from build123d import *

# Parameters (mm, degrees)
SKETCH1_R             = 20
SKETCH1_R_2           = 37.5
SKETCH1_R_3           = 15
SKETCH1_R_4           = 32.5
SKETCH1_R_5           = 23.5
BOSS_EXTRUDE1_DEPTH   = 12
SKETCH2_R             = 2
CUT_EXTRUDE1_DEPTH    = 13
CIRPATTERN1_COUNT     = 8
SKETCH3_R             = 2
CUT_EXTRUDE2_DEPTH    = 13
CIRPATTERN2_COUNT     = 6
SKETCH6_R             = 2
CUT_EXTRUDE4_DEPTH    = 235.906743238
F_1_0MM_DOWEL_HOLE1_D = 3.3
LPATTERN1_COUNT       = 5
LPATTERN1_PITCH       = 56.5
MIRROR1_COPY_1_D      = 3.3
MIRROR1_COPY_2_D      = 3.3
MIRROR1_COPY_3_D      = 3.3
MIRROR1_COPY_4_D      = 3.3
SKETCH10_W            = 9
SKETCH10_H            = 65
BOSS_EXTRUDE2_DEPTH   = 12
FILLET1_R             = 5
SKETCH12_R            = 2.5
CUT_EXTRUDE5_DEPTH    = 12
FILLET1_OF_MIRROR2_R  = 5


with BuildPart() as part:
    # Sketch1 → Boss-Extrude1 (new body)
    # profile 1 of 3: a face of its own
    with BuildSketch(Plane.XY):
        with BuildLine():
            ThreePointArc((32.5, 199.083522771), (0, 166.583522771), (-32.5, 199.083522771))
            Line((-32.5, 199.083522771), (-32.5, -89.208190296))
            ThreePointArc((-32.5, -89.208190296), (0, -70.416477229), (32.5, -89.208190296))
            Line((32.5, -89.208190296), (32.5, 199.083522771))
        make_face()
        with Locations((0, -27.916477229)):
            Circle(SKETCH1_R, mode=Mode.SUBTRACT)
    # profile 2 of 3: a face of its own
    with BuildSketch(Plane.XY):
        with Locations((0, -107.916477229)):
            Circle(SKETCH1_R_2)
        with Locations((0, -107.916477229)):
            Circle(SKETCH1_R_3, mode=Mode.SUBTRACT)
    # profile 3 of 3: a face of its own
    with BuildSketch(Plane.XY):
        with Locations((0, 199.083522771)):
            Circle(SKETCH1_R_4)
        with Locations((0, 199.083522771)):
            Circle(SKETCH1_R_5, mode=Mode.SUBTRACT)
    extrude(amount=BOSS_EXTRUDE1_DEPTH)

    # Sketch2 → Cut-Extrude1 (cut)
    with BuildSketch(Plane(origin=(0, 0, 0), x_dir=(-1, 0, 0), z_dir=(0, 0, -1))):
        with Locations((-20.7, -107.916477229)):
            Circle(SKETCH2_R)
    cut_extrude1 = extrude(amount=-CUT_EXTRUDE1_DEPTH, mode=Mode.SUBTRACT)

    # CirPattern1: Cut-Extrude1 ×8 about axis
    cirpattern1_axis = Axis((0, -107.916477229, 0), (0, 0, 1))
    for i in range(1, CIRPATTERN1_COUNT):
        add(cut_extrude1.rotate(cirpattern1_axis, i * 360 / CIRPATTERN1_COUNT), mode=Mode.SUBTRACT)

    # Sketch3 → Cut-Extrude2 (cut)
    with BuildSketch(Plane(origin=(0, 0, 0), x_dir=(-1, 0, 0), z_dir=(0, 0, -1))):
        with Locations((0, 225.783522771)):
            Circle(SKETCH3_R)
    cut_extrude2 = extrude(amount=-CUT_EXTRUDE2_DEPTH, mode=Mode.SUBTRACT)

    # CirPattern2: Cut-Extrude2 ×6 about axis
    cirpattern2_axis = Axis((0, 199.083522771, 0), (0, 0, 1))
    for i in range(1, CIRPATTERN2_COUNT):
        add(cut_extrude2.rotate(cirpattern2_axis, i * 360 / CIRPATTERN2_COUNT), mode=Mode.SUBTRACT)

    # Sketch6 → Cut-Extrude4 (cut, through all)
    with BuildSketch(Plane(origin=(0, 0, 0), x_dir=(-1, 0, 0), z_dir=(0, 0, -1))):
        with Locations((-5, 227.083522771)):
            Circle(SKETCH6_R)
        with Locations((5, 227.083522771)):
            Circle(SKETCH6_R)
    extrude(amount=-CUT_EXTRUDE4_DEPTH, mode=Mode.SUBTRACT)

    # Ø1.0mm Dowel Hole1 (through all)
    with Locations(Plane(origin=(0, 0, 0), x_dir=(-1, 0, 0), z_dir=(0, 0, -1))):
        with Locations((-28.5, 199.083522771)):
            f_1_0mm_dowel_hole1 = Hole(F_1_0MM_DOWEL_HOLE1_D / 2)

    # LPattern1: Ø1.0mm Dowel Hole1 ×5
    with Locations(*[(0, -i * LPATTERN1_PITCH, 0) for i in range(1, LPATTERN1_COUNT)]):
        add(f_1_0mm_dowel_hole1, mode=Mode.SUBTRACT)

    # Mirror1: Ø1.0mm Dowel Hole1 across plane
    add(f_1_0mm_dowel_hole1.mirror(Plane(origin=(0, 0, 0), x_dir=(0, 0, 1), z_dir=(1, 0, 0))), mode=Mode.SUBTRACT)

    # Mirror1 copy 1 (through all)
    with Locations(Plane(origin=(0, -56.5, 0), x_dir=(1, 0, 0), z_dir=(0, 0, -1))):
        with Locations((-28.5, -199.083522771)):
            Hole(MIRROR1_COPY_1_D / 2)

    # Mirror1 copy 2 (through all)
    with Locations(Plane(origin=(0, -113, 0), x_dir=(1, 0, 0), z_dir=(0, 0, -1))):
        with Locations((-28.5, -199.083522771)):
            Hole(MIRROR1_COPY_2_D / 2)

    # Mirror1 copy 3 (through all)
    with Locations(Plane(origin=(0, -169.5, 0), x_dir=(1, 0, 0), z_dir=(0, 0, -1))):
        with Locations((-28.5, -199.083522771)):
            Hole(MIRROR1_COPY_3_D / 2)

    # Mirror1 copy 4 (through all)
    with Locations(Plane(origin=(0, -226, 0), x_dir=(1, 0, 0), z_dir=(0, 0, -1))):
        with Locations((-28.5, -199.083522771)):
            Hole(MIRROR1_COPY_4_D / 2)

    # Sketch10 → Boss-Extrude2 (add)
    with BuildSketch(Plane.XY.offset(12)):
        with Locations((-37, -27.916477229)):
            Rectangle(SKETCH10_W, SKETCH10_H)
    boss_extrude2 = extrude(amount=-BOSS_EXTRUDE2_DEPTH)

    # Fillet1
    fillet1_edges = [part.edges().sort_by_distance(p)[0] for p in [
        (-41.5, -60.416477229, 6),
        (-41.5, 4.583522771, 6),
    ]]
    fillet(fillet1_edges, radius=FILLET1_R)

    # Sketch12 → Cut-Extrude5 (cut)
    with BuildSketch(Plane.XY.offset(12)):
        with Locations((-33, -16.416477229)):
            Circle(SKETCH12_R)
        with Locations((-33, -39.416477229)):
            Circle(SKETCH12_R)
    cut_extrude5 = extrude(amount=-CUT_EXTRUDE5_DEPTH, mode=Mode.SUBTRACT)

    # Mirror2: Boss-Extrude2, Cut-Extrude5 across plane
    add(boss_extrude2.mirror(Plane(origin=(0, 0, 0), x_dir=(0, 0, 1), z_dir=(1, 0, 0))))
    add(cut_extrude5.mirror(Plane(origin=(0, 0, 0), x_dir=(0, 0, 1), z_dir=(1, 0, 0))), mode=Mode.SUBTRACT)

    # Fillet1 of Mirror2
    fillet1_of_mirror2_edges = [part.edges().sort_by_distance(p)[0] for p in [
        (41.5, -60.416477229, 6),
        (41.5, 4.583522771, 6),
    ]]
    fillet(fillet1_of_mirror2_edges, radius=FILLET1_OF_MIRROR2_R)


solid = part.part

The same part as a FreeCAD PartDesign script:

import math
import FreeCAD as App
import Part
import Sketcher
from FreeCAD import Vector
Q = App.Units.Quantity


def edges_at(feature, points):
    """Names of the edges that pass closest to the given points."""
    edges = feature.Shape.Edges
    near = lambda p: min(range(len(edges)), key=lambda i: edges[i].distToShape(Part.Vertex(*p))[0])
    return sorted({f"Edge{near(p) + 1}" for p in points})


def add_polygon(sketch, points):
    """Adds a closed chain of lines whose ends are joined by coincident constraints."""
    first, n = sketch.GeometryCount, len(points)
    for a, b in zip(points, points[1:] + points[:1]):
        sketch.addGeometry(Part.LineSegment(App.Vector(*a, 0), App.Vector(*b, 0)), False)
    for i in range(n):
        sketch.addConstraint(Sketcher.Constraint("Coincident", first + i, 2, first + (i + 1) % n, 1))

doc = App.newDocument("Part")
body = doc.addObject("PartDesign::Body", "Body")

sketch1 = body.newObject("Sketcher::SketchObject", "Sketch")
sketch1.AttachmentSupport = (doc.getObject("XY_Plane"), [""])
sketch1.MapMode = "FlatFace"
sketch1.addGeometry([
    Part.LineSegment(Vector(32, -89, 0), Vector(32, 199, 0)),
    Part.ArcOfCircle(Part.Circle(Vector(0, 199, 0), Vector(0, 0, 1), 32), math.radians(0), math.radians(180)),
    Part.LineSegment(Vector(-32, 199, 0), Vector(-32, -89, 0)),
    Part.ArcOfCircle(Part.Circle(Vector(0, -108, 0), Vector(0, 0, 1), 38), math.radians(150), math.radians(390)),
    Part.Circle(Vector(0, -28, 0), Vector(0, 0, 1), 20),
    Part.Circle(Vector(0, 199, 0), Vector(0, 0, 1), 24),
    Part.Circle(Vector(0, -108, 0), Vector(0, 0, 1), 15),
], False)
sketch1.addConstraint([
    Sketcher.Constraint("Tangent", 0, 2, 1, 1),
    Sketcher.Constraint("Tangent", 1, 2, 2, 1),
    Sketcher.Constraint("Coincident", 2, 2, 3, 1),
    Sketcher.Constraint("Coincident", 3, 2, 0, 1),
    Sketcher.Constraint("Vertical", 0),
    Sketcher.Constraint("Vertical", 2),
    Sketcher.Constraint("Coincident", 5, 3, 1, 3),
    Sketcher.Constraint("Coincident", 6, 3, 3, 3),
    Sketcher.Constraint("Symmetric", 2, 2, 3, 2, -2),
    Sketcher.Constraint("PointOnObject", 4, 3, -2),
    Sketcher.Constraint("Diameter", 4, Q("40 mm")),
    Sketcher.Constraint("Diameter", 5, Q("47 mm")),
    Sketcher.Constraint("Diameter", 6, Q("30 mm")),
    Sketcher.Constraint("Radius", 1, Q("32.5 mm")),
    Sketcher.Constraint("Radius", 3, Q("37.5 mm")),
    Sketcher.Constraint("DistanceY", 3, 3, 1, 3, Q("307 mm")),
    Sketcher.Constraint("DistanceY", 3, 3, 4, 3, Q("80 mm")),
    Sketcher.Constraint("DistanceY", 2, 2, -1, 1, Q("89.20819 mm")),
])
pad1 = body.newObject("PartDesign::Pad", "Pad")
pad1.Profile = sketch1
pad1.Length = 12

sketch2 = body.newObject("Sketcher::SketchObject", "Sketch001")
sketch2.AttachmentSupport = (doc.getObject("XY_Plane"), [""])
sketch2.MapMode = "FlatFace"
sketch2.addGeometry(Part.Circle(Vector(20.7, -107.9, 0), Vector(0, 0, 1), 2), False)
sketch2.addConstraint([
    Sketcher.Constraint("Diameter", 0, Q("4 mm")),
    Sketcher.Constraint("DistanceX", -1, 1, 0, 3, Q("20.7 mm")),
    Sketcher.Constraint("DistanceY", 0, 3, -1, 1, Q("107.916477 mm")),
])
pocket1 = body.newObject("PartDesign::Pocket", "Pocket")
pocket1.Profile = sketch2
pocket1.Length = 13
pocket1.Reversed = True
doc.recompute()

datumline = body.newObject("PartDesign::Line", "DatumLine")
datumline.Placement = App.Placement(Vector(0, -107.916477, 0), App.Rotation(Vector(0, 0, 1), Vector(0, 0, 1)))
polarpattern = body.newObject("PartDesign::PolarPattern", "PolarPattern")
polarpattern.Originals = [pocket1]
polarpattern.Axis = (datumline, [""])
polarpattern.Angle = 360
polarpattern.Occurrences = 8
body.Tip = polarpattern

sketch3 = body.newObject("Sketcher::SketchObject", "Sketch002")
sketch3.AttachmentSupport = (doc.getObject("XY_Plane"), [""])
sketch3.MapMode = "FlatFace"
sketch3.addGeometry(Part.Circle(Vector(0, 225.8, 0), Vector(0, 0, 1), 2), False)
sketch3.addConstraint([
    Sketcher.Constraint("PointOnObject", 0, 3, -2),
    Sketcher.Constraint("Diameter", 0, Q("4 mm")),
    Sketcher.Constraint("DistanceY", -1, 1, 0, 3, Q("225.783523 mm")),
])
pocket2 = body.newObject("PartDesign::Pocket", "Pocket001")
pocket2.Profile = sketch3
pocket2.Length = 13
pocket2.Reversed = True
doc.recompute()

datumline2 = body.newObject("PartDesign::Line", "DatumLine001")
datumline2.Placement = App.Placement(Vector(0, 199.083523, 0), App.Rotation(Vector(0, 0, 1), Vector(0, 0, 1)))
polarpattern2 = body.newObject("PartDesign::PolarPattern", "PolarPattern001")
polarpattern2.Originals = [pocket2]
polarpattern2.Axis = (datumline2, [""])
polarpattern2.Angle = 360
polarpattern2.Occurrences = 6
body.Tip = polarpattern2

sketch4 = body.newObject("Sketcher::SketchObject", "Sketch003")
sketch4.AttachmentSupport = (doc.getObject("XY_Plane"), [""])
sketch4.MapMode = "FlatFace"
sketch4.addGeometry([
    Part.Circle(Vector(5, 227.1, 0), Vector(0, 0, 1), 2),
    Part.Circle(Vector(-5, 227.1, 0), Vector(0, 0, 1), 2),
], False)
sketch4.addConstraint([
    Sketcher.Constraint("Equal", 0, 1),
    Sketcher.Constraint("Symmetric", 0, 3, 1, 3, -2),
    Sketcher.Constraint("Diameter", 0, Q("4 mm")),
    Sketcher.Constraint("DistanceX", -1, 1, 0, 3, Q("5 mm")),
    Sketcher.Constraint("DistanceY", -1, 1, 0, 3, Q("227.083523 mm")),
])
pocket3 = body.newObject("PartDesign::Pocket", "Pocket002")
pocket3.Profile = sketch4
pocket3.Type = "ThroughAll"
pocket3.Reversed = True

sketch5 = body.newObject("Sketcher::SketchObject", "Sketch004")
sketch5.AttachmentSupport = (doc.getObject("XY_Plane"), [""])
sketch5.MapMode = "FlatFace"
sketch5.addGeometry(Part.Circle(Vector(28.5, 199.1, 0), Vector(0, 0, 1), 1.6), False)
sketch5.addConstraint([
    Sketcher.Constraint("Diameter", 0, Q("3.3 mm")),
    Sketcher.Constraint("DistanceX", -1, 1, 0, 3, Q("28.5 mm")),
    Sketcher.Constraint("DistanceY", -1, 1, 0, 3, Q("199.083523 mm")),
])
doc.recompute()
hole = body.newObject("PartDesign::Hole", "Hole")
hole.Profile = sketch5
hole.ThreadType = "None"
hole.Diameter = 3.3
hole.DepthType = "ThroughAll"
hole.Reversed = True
doc.recompute()

linearpattern = body.newObject("PartDesign::LinearPattern", "LinearPattern")
linearpattern.Originals = [hole]
linearpattern.Direction = (doc.getObject("Y_Axis"), [""])
linearpattern.Mode = "offset"
linearpattern.Offset = 56.5
linearpattern.Occurrences = 5
linearpattern.Reversed = True
body.Tip = linearpattern
doc.recompute()

mirrored = body.newObject("PartDesign::Mirrored", "Mirrored")
mirrored.Originals = [hole]
mirrored.MirrorPlane = (doc.getObject("YZ_Plane"), [""])
body.Tip = mirrored

sketch6 = body.newObject("Sketcher::SketchObject", "Sketch005")
sketch6.AttachmentSupport = (doc.getObject("XY_Plane"), [""])
sketch6.MapMode = "FlatFace"
sketch6.addGeometry(Part.Circle(Vector(-28.5, 142.6, 0), Vector(0, 0, 1), 1.6), False)
sketch6.addConstraint([
    Sketcher.Constraint("Diameter", 0, Q("3.3 mm")),
    Sketcher.Constraint("DistanceX", 0, 3, -1, 1, Q("28.5 mm")),
    Sketcher.Constraint("DistanceY", -1, 1, 0, 3, Q("142.583523 mm")),
])
doc.recompute()
hole2 = body.newObject("PartDesign::Hole", "Hole001")
hole2.Profile = sketch6
hole2.ThreadType = "None"
hole2.Diameter = 3.3
hole2.DepthType = "ThroughAll"
hole2.Reversed = True

sketch7 = body.newObject("Sketcher::SketchObject", "Sketch006")
sketch7.AttachmentSupport = (doc.getObject("XY_Plane"), [""])
sketch7.MapMode = "FlatFace"
sketch7.addGeometry(Part.Circle(Vector(-28.5, 86.1, 0), Vector(0, 0, 1), 1.6), False)
sketch7.addConstraint([
    Sketcher.Constraint("Diameter", 0, Q("3.3 mm")),
    Sketcher.Constraint("DistanceX", 0, 3, -1, 1, Q("28.5 mm")),
    Sketcher.Constraint("DistanceY", -1, 1, 0, 3, Q("86.083523 mm")),
])
doc.recompute()
hole3 = body.newObject("PartDesign::Hole", "Hole002")
hole3.Profile = sketch7
hole3.ThreadType = "None"
hole3.Diameter = 3.3
hole3.DepthType = "ThroughAll"
hole3.Reversed = True

sketch8 = body.newObject("Sketcher::SketchObject", "Sketch007")
sketch8.AttachmentSupport = (doc.getObject("XY_Plane"), [""])
sketch8.MapMode = "FlatFace"
sketch8.addGeometry(Part.Circle(Vector(-28.5, 29.6, 0), Vector(0, 0, 1), 1.6), False)
sketch8.addConstraint([
    Sketcher.Constraint("Diameter", 0, Q("3.3 mm")),
    Sketcher.Constraint("DistanceX", 0, 3, -1, 1, Q("28.5 mm")),
    Sketcher.Constraint("DistanceY", -1, 1, 0, 3, Q("29.583523 mm")),
])
doc.recompute()
hole4 = body.newObject("PartDesign::Hole", "Hole003")
hole4.Profile = sketch8
hole4.ThreadType = "None"
hole4.Diameter = 3.3
hole4.DepthType = "ThroughAll"
hole4.Reversed = True

sketch9 = body.newObject("Sketcher::SketchObject", "Sketch008")
sketch9.AttachmentSupport = (doc.getObject("XY_Plane"), [""])
sketch9.MapMode = "FlatFace"
sketch9.addGeometry(Part.Circle(Vector(-28.5, -26.9, 0), Vector(0, 0, 1), 1.6), False)
sketch9.addConstraint([
    Sketcher.Constraint("Diameter", 0, Q("3.3 mm")),
    Sketcher.Constraint("DistanceX", 0, 3, -1, 1, Q("28.5 mm")),
    Sketcher.Constraint("DistanceY", 0, 3, -1, 1, Q("26.916477 mm")),
])
doc.recompute()
hole5 = body.newObject("PartDesign::Hole", "Hole004")
hole5.Profile = sketch9
hole5.ThreadType = "None"
hole5.Diameter = 3.3
hole5.DepthType = "ThroughAll"
hole5.Reversed = True

sketch10 = body.newObject("Sketcher::SketchObject", "Sketch009")
sketch10.AttachmentSupport = (doc.getObject("XY_Plane"), [""])
sketch10.MapMode = "FlatFace"
sketch10.AttachmentOffset = App.Placement(Vector(0, 0, 12), App.Rotation())
add_polygon(sketch10, [(-42, 5), (-42, -60), (-32, -60), (-32, 5)])
sketch10.addConstraint([
    Sketcher.Constraint("Vertical", 0),
    Sketcher.Constraint("Horizontal", 1),
    Sketcher.Constraint("Vertical", 2),
    Sketcher.Constraint("Horizontal", 3),
    Sketcher.Constraint("DistanceX", 1, 1, 1, 2, Q("9 mm")),
    Sketcher.Constraint("DistanceY", 0, 2, 0, 1, Q("65 mm")),
    Sketcher.Constraint("DistanceX", 0, 2, -1, 1, Q("41.5 mm")),
    Sketcher.Constraint("DistanceY", 0, 2, -1, 1, Q("60.416477 mm")),
])
pad2 = body.newObject("PartDesign::Pad", "Pad001")
pad2.Profile = sketch10
pad2.Length = 12
pad2.Reversed = True
doc.recompute()

fillet = body.newObject("PartDesign::Fillet", "Fillet")
fillet.Base = (pad2, edges_at(pad2, [(-41.5, -60.416, 6), (-41.5, 4.584, 6)]))
fillet.Radius = 5

sketch11 = body.newObject("Sketcher::SketchObject", "Sketch010")
sketch11.AttachmentSupport = (doc.getObject("XY_Plane"), [""])
sketch11.MapMode = "FlatFace"
sketch11.AttachmentOffset = App.Placement(Vector(0, 0, 12), App.Rotation())
sketch11.addGeometry([
    Part.Circle(Vector(-33, -16.4, 0), Vector(0, 0, 1), 2.5),
    Part.Circle(Vector(-33, -39.4, 0), Vector(0, 0, 1), 2.5),
], False)
sketch11.addConstraint([
    Sketcher.Constraint("Equal", 0, 1),
    Sketcher.Constraint("Vertical", 0, 3, 1, 3),
    Sketcher.Constraint("Diameter", 0, Q("5 mm")),
    Sketcher.Constraint("DistanceX", 0, 3, -1, 1, Q("33 mm")),
    Sketcher.Constraint("DistanceY", 1, 3, 0, 3, Q("23 mm")),
    Sketcher.Constraint("DistanceY", 0, 3, -1, 1, Q("16.416477 mm")),
])
pocket4 = body.newObject("PartDesign::Pocket", "Pocket003")
pocket4.Profile = sketch11
pocket4.Length = 12
doc.recompute()

mirrored2 = body.newObject("PartDesign::Mirrored", "Mirrored001")
mirrored2.Originals = [pad2, pocket4]
mirrored2.MirrorPlane = (doc.getObject("YZ_Plane"), [""])
body.Tip = mirrored2
doc.recompute()

fillet2 = body.newObject("PartDesign::Fillet", "Fillet001")
fillet2.Base = (mirrored2, edges_at(mirrored2, [(41.5, -60.416, 6), (41.5, 4.584, 6)]))
fillet2.Radius = 5

doc.recompute()
